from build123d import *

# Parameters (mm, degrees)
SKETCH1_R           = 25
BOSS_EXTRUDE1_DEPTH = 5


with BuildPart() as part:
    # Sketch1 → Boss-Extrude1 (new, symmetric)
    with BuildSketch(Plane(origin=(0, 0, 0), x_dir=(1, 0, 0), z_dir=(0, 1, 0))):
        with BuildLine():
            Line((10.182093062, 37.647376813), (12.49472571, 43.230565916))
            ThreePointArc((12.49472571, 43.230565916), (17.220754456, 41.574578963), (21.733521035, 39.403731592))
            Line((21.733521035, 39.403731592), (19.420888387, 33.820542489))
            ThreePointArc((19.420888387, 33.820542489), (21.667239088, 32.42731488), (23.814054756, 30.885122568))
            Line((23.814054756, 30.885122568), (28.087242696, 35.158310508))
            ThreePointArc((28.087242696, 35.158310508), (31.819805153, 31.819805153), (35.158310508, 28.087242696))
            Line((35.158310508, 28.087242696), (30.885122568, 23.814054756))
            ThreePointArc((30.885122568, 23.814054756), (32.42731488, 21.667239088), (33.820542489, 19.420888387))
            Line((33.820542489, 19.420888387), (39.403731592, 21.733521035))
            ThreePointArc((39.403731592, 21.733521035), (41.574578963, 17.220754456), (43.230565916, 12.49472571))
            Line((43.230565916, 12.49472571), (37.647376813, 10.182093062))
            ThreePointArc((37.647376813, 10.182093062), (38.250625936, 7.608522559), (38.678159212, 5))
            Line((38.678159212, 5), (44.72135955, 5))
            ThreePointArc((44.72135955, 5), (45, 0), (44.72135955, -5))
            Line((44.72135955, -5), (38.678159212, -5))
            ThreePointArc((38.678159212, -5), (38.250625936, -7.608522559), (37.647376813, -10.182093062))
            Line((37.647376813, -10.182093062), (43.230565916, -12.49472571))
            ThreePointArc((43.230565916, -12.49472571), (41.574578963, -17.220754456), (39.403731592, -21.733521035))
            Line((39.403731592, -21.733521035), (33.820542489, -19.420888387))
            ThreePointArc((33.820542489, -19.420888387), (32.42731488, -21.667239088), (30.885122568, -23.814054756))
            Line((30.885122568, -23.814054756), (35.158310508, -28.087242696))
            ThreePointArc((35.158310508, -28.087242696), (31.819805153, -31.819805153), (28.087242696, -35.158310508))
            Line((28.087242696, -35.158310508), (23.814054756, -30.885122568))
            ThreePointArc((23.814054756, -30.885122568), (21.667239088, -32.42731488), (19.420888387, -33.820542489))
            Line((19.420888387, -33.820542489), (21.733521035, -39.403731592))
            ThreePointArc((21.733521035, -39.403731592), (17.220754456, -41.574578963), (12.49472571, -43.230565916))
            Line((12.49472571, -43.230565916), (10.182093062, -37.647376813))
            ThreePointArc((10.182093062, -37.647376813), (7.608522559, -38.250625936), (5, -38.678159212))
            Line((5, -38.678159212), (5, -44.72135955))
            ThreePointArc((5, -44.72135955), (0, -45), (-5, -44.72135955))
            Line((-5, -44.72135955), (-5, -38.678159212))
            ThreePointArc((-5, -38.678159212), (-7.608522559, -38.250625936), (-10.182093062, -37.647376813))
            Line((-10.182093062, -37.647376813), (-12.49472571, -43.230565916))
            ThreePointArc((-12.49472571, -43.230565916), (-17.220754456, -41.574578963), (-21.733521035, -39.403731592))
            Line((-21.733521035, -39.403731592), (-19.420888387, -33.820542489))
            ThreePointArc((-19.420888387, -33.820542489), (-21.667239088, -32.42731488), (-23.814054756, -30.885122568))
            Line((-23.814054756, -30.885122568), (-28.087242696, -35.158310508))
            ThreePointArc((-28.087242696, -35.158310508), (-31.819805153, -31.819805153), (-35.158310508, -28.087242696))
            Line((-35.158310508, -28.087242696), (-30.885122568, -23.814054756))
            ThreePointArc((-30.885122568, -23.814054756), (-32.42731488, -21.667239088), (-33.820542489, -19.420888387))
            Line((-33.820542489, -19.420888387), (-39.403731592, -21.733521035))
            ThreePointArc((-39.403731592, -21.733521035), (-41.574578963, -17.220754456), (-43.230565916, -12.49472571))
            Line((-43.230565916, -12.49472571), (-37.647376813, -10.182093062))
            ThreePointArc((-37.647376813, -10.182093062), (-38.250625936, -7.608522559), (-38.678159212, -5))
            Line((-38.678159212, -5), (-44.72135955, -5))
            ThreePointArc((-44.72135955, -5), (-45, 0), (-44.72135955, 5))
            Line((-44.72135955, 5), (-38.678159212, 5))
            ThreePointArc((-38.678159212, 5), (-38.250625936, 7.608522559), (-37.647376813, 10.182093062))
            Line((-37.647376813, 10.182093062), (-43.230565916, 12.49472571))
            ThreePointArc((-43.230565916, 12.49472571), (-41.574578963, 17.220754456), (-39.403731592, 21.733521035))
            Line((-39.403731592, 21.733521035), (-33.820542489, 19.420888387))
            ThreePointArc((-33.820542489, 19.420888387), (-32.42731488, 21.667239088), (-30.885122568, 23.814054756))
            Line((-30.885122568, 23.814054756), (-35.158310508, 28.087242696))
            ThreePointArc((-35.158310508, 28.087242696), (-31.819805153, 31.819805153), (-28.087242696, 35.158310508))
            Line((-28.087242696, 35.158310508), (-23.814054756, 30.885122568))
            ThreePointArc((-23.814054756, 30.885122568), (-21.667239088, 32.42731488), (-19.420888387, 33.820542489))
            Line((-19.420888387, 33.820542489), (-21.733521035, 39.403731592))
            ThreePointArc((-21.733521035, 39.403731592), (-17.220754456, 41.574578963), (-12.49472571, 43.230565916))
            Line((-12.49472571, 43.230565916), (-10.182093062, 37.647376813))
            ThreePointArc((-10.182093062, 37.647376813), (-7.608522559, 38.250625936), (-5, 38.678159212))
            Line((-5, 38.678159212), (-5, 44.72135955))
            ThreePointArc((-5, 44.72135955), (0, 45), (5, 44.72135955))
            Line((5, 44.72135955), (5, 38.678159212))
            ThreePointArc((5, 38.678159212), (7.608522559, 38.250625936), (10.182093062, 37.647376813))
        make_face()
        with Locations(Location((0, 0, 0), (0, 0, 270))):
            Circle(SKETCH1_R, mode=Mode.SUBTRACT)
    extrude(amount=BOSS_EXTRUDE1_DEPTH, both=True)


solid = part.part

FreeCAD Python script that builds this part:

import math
import FreeCAD as App
import Part
import Sketcher

V = App.Vector
Q = App.Units.Quantity

doc = App.newDocument("Part")
body = doc.addObject("PartDesign::Body", "Body")

# Sketch on XZ plane
sketch1 = doc.addObject("Sketcher::SketchObject", "Sketch")
body.addObject(sketch1)
sketch1.AttachmentSupport = (doc.XZ_Plane, [""])
sketch1.MapMode = "FlatFace"
sketch1.addGeometry([
    Part.LineSegment(V(12.494726, -43.230566, 0), V(10.182093, -37.647377, 0)),  # 0
    Part.ArcOfCircle(Part.Circle(V(0, 0, 0), V(0, 0, 1), 39), math.radians(-82.634114), math.radians(-74.865886)),  # 1
    Part.LineSegment(V(5, -38.678159, 0), V(5, -44.72136, 0)),  # 2
    Part.ArcOfCircle(Part.Circle(V(0, 0, 0), V(0, 0, 1), 45), math.radians(-96.37937), math.radians(-83.62063)),  # 3
    Part.LineSegment(V(-5, -44.72136, 0), V(-5, -38.678159, 0)),  # 4
    Part.ArcOfCircle(Part.Circle(V(0, 0, 0), V(0, 0, 1), 39), math.radians(-105.134114), math.radians(-97.365886)),  # 5
    Part.LineSegment(V(-10.182093, -37.647377, 0), V(-12.494726, -43.230566, 0)),  # 6
    Part.ArcOfCircle(Part.Circle(V(0, 0, 0), V(0, 0, 1), 45), math.radians(-118.87937), math.radians(-106.12063)),  # 7
    Part.LineSegment(V(-21.733521, -39.403732, 0), V(-19.420888, -33.820542, 0)),  # 8
    Part.ArcOfCircle(Part.Circle(V(0, 0, 0), V(0, 0, 1), 39), math.radians(-127.634114), math.radians(-119.865886)),  # 9
    Part.LineSegment(V(-23.814055, -30.885123, 0), V(-28.087243, -35.158311, 0)),  # 10
    Part.ArcOfCircle(Part.Circle(V(0, 0, 0), V(0, 0, 1), 45), math.radians(-141.37937), math.radians(-128.62063)),  # 11
    Part.LineSegment(V(-35.158311, -28.087243, 0), V(-30.885123, -23.814055, 0)),  # 12
    Part.ArcOfCircle(Part.Circle(V(0, 0, 0), V(0, 0, 1), 39), math.radians(-150.134114), math.radians(-142.365886)),  # 13
    Part.LineSegment(V(-33.820542, -19.420888, 0), V(-39.403732, -21.733521, 0)),  # 14
    Part.ArcOfCircle(Part.Circle(V(0, 0, 0), V(0, 0, 1), 45), math.radians(-163.87937), math.radians(-151.12063)),  # 15
    Part.LineSegment(V(-43.230566, -12.494726, 0), V(-37.647377, -10.182093, 0)),  # 16
    Part.ArcOfCircle(Part.Circle(V(0, 0, 0), V(0, 0, 1), 39), math.radians(-172.634114), math.radians(-164.865886)),  # 17
    Part.LineSegment(V(-38.678159, -5, 0), V(-44.72136, -5, 0)),  # 18
    Part.ArcOfCircle(Part.Circle(V(0, 0, 0), V(0, 0, 1), 45), math.radians(173.62063), math.radians(186.37937)),  # 19
    Part.LineSegment(V(-44.72136, 5, 0), V(-38.678159, 5, 0)),  # 20
    Part.ArcOfCircle(Part.Circle(V(0, 0, 0), V(0, 0, 1), 39), math.radians(164.865886), math.radians(172.634114)),  # 21
    Part.LineSegment(V(-37.647377, 10.182093, 0), V(-43.230566, 12.494726, 0)),  # 22
    Part.ArcOfCircle(Part.Circle(V(0, 0, 0), V(0, 0, 1), 45), math.radians(151.12063), math.radians(163.87937)),  # 23
    Part.LineSegment(V(-39.403732, 21.733521, 0), V(-33.820542, 19.420888, 0)),  # 24
    Part.ArcOfCircle(Part.Circle(V(0, 0, 0), V(0, 0, 1), 39), math.radians(142.365886), math.radians(150.134114)),  # 25
    Part.LineSegment(V(-30.885123, 23.814055, 0), V(-35.158311, 28.087243, 0)),  # 26
    Part.ArcOfCircle(Part.Circle(V(0, 0, 0), V(0, 0, 1), 45), math.radians(128.62063), math.radians(141.37937)),  # 27
    Part.LineSegment(V(-28.087243, 35.158311, 0), V(-23.814055, 30.885123, 0)),  # 28
    Part.ArcOfCircle(Part.Circle(V(0, 0, 0), V(0, 0, 1), 39), math.radians(119.865886), math.radians(127.634114)),  # 29
    Part.LineSegment(V(-19.420888, 33.820542, 0), V(-21.733521, 39.403732, 0)),  # 30
    Part.ArcOfCircle(Part.Circle(V(0, 0, 0), V(0, 0, 1), 45), math.radians(106.12063), math.radians(118.87937)),  # 31
    Part.LineSegment(V(-12.494726, 43.230566, 0), V(-10.182093, 37.647377, 0)),  # 32
    Part.ArcOfCircle(Part.Circle(V(0, 0, 0), V(0, 0, 1), 39), math.radians(97.365886), math.radians(105.134114)),  # 33
    Part.LineSegment(V(-5, 38.678159, 0), V(-5, 44.72136, 0)),  # 34
    Part.ArcOfCircle(Part.Circle(V(0, 0, 0), V(0, 0, 1), 45), math.radians(83.62063), math.radians(96.37937)),  # 35
    Part.LineSegment(V(5, 44.72136, 0), V(5, 38.678159, 0)),  # 36
    Part.ArcOfCircle(Part.Circle(V(0, 0, 0), V(0, 0, 1), 39), math.radians(74.865886), math.radians(82.634114)),  # 37
    Part.LineSegment(V(10.182093, 37.647377, 0), V(12.494726, 43.230566, 0)),  # 38
    Part.ArcOfCircle(Part.Circle(V(0, 0, 0), V(0, 0, 1), 45), math.radians(61.12063), math.radians(73.87937)),  # 39
    Part.LineSegment(V(21.733521, 39.403732, 0), V(19.420888, 33.820542, 0)),  # 40
    Part.ArcOfCircle(Part.Circle(V(0, 0, 0), V(0, 0, 1), 39), math.radians(52.365886), math.radians(60.134114)),  # 41
    Part.LineSegment(V(23.814055, 30.885123, 0), V(28.087243, 35.158311, 0)),  # 42
    Part.ArcOfCircle(Part.Circle(V(0, 0, 0), V(0, 0, 1), 45), math.radians(38.62063), math.radians(51.37937)),  # 43
    Part.LineSegment(V(35.158311, 28.087243, 0), V(30.885123, 23.814055, 0)),  # 44
    Part.ArcOfCircle(Part.Circle(V(0, 0, 0), V(0, 0, 1), 39), math.radians(29.865886), math.radians(37.634114)),  # 45
    Part.LineSegment(V(33.820542, 19.420888, 0), V(39.403732, 21.733521, 0)),  # 46
    Part.ArcOfCircle(Part.Circle(V(0, 0, 0), V(0, 0, 1), 45), math.radians(16.12063), math.radians(28.87937)),  # 47
    Part.LineSegment(V(43.230566, 12.494726, 0), V(37.647377, 10.182093, 0)),  # 48
    Part.ArcOfCircle(Part.Circle(V(0, 0, 0), V(0, 0, 1), 39), math.radians(7.365886), math.radians(15.134114)),  # 49
    Part.LineSegment(V(38.678159, 5, 0), V(44.72136, 5, 0)),  # 50
    Part.ArcOfCircle(Part.Circle(V(0, 0, 0), V(0, 0, 1), 45), math.radians(-6.37937), math.radians(6.37937)),  # 51
    Part.LineSegment(V(44.72136, -5, 0), V(38.678159, -5, 0)),  # 52
    Part.ArcOfCircle(Part.Circle(V(0, 0, 0), V(0, 0, 1), 39), math.radians(-15.134114), math.radians(-7.365886)),  # 53
    Part.LineSegment(V(37.647377, -10.182093, 0), V(43.230566, -12.494726, 0)),  # 54
    Part.ArcOfCircle(Part.Circle(V(0, 0, 0), V(0, 0, 1), 45), math.radians(-28.87937), math.radians(-16.12063)),  # 55
    Part.LineSegment(V(39.403732, -21.733521, 0), V(33.820542, -19.420888, 0)),  # 56
    Part.ArcOfCircle(Part.Circle(V(0, 0, 0), V(0, 0, 1), 39), math.radians(-37.634114), math.radians(-29.865886)),  # 57
    Part.LineSegment(V(30.885123, -23.814055, 0), V(35.158311, -28.087243, 0)),  # 58
    Part.ArcOfCircle(Part.Circle(V(0, 0, 0), V(0, 0, 1), 45), math.radians(-51.37937), math.radians(-38.62063)),  # 59
    Part.LineSegment(V(28.087243, -35.158311, 0), V(23.814055, -30.885123, 0)),  # 60
    Part.ArcOfCircle(Part.Circle(V(0, 0, 0), V(0, 0, 1), 39), math.radians(-60.134114), math.radians(-52.365886)),  # 61
    Part.LineSegment(V(19.420888, -33.820542, 0), V(21.733521, -39.403732, 0)),  # 62
    Part.ArcOfCircle(Part.Circle(V(0, 0, 0), V(0, 0, 1), 45), math.radians(-73.87937), math.radians(-61.12063)),  # 63
    Part.Circle(V(0, 0, 0), V(0, 0, 1), 25),  # 64
], False)
sketch1.addConstraint([
    Sketcher.Constraint("Coincident", 0, 2, 1, 2),
    Sketcher.Constraint("Coincident", 1, 1, 2, 1),
    Sketcher.Constraint("Coincident", 2, 2, 3, 2),
    Sketcher.Constraint("Coincident", 3, 1, 4, 1),
    Sketcher.Constraint("Coincident", 4, 2, 5, 2),
    Sketcher.Constraint("Coincident", 5, 1, 6, 1),
    Sketcher.Constraint("Coincident", 6, 2, 7, 2),
    Sketcher.Constraint("Coincident", 7, 1, 8, 1),
    Sketcher.Constraint("Coincident", 8, 2, 9, 2),
    Sketcher.Constraint("Coincident", 9, 1, 10, 1),
    Sketcher.Constraint("Coincident", 10, 2, 11, 2),
    Sketcher.Constraint("Coincident", 11, 1, 12, 1),
    Sketcher.Constraint("Coincident", 12, 2, 13, 2),
    Sketcher.Constraint("Coincident", 13, 1, 14, 1),
    Sketcher.Constraint("Coincident", 14, 2, 15, 2),
    Sketcher.Constraint("Coincident", 15, 1, 16, 1),
    Sketcher.Constraint("Coincident", 16, 2, 17, 2),
    Sketcher.Constraint("Coincident", 17, 1, 18, 1),
    Sketcher.Constraint("Coincident", 18, 2, 19, 2),
    Sketcher.Constraint("Coincident", 19, 1, 20, 1),
    Sketcher.Constraint("Coincident", 20, 2, 21, 2),
    Sketcher.Constraint("Coincident", 21, 1, 22, 1),
    Sketcher.Constraint("Coincident", 22, 2, 23, 2),
    Sketcher.Constraint("Coincident", 23, 1, 24, 1),
    Sketcher.Constraint("Coincident", 24, 2, 25, 2),
    Sketcher.Constraint("Coincident", 25, 1, 26, 1),
    Sketcher.Constraint("Coincident", 26, 2, 27, 2),
    Sketcher.Constraint("Coincident", 27, 1, 28, 1),
    Sketcher.Constraint("Coincident", 28, 2, 29, 2),
    Sketcher.Constraint("Coincident", 29, 1, 30, 1),
    Sketcher.Constraint("Coincident", 30, 2, 31, 2),
    Sketcher.Constraint("Coincident", 31, 1, 32, 1),
    Sketcher.Constraint("Coincident", 32, 2, 33, 2),
    Sketcher.Constraint("Coincident", 33, 1, 34, 1),
    Sketcher.Constraint("Coincident", 34, 2, 35, 2),
    Sketcher.Constraint("Coincident", 35, 1, 36, 1),
    Sketcher.Constraint("Coincident", 36, 2, 37, 2),
    Sketcher.Constraint("Coincident", 37, 1, 38, 1),
    Sketcher.Constraint("Coincident", 38, 2, 39, 2),
    Sketcher.Constraint("Coincident", 39, 1, 40, 1),
    Sketcher.Constraint("Coincident", 40, 2, 41, 2),
    Sketcher.Constraint("Coincident", 41, 1, 42, 1),
    Sketcher.Constraint("Coincident", 42, 2, 43, 2),
    Sketcher.Constraint("Coincident", 43, 1, 44, 1),
    Sketcher.Constraint("Coincident", 44, 2, 45, 2),
    Sketcher.Constraint("Coincident", 45, 1, 46, 1),
    Sketcher.Constraint("Coincident", 46, 2, 47, 2),
    Sketcher.Constraint("Coincident", 47, 1, 48, 1),
    Sketcher.Constraint("Coincident", 48, 2, 49, 2),
    Sketcher.Constraint("Coincident", 49, 1, 50, 1),
    Sketcher.Constraint("Coincident", 50, 2, 51, 2),
    Sketcher.Constraint("Coincident", 51, 1, 52, 1),
    Sketcher.Constraint("Coincident", 52, 2, 53, 2),
    Sketcher.Constraint("Coincident", 53, 1, 54, 1),
    Sketcher.Constraint("Coincident", 54, 2, 55, 2),
    Sketcher.Constraint("Coincident", 55, 1, 56, 1),
    Sketcher.Constraint("Coincident", 56, 2, 57, 2),
    Sketcher.Constraint("Coincident", 57, 1, 58, 1),
    Sketcher.Constraint("Coincident", 58, 2, 59, 2),
    Sketcher.Constraint("Coincident", 59, 1, 60, 1),
    Sketcher.Constraint("Coincident", 60, 2, 61, 2),
    Sketcher.Constraint("Coincident", 61, 1, 62, 1),
    Sketcher.Constraint("Coincident", 62, 2, 63, 2),
    Sketcher.Constraint("Coincident", 63, 1, 0, 1),
    Sketcher.Constraint("Vertical", 2),
    Sketcher.Constraint("Vertical", 4),
    Sketcher.Constraint("Horizontal", 18),
    Sketcher.Constraint("Horizontal", 20),
    Sketcher.Constraint("Vertical", 34),
    Sketcher.Constraint("Vertical", 36),
    Sketcher.Constraint("Horizontal", 50),
    Sketcher.Constraint("Horizontal", 52),
    Sketcher.Constraint("Coincident", 1, 3, -1, 1),
    Sketcher.Constraint("Coincident", 3, 3, -1, 1),
    Sketcher.Constraint("Coincident", 5, 3, -1, 1),
    Sketcher.Constraint("Coincident", 7, 3, -1, 1),
    Sketcher.Constraint("Coincident", 9, 3, -1, 1),
    Sketcher.Constraint("Coincident", 11, 3, -1, 1),
    Sketcher.Constraint("Coincident", 13, 3, -1, 1),
    Sketcher.Constraint("Coincident", 15, 3, -1, 1),
    Sketcher.Constraint("Coincident", 17, 3, -1, 1),
    Sketcher.Constraint("Coincident", 19, 3, -1, 1),
    Sketcher.Constraint("Coincident", 21, 3, -1, 1),
    Sketcher.Constraint("Coincident", 23, 3, -1, 1),
    Sketcher.Constraint("Coincident", 25, 3, -1, 1),
    Sketcher.Constraint("Coincident", 27, 3, -1, 1),
    Sketcher.Constraint("Coincident", 29, 3, -1, 1),
    Sketcher.Constraint("Coincident", 31, 3, -1, 1),
    Sketcher.Constraint("Coincident", 33, 3, -1, 1),
    Sketcher.Constraint("Coincident", 35, 3, -1, 1),
    Sketcher.Constraint("Coincident", 37, 3, -1, 1),
    Sketcher.Constraint("Coincident", 39, 3, -1, 1),
    Sketcher.Constraint("Coincident", 41, 3, -1, 1),
    Sketcher.Constraint("Coincident", 43, 3, -1, 1),
    Sketcher.Constraint("Coincident", 45, 3, -1, 1),
    Sketcher.Constraint("Coincident", 47, 3, -1, 1),
    Sketcher.Constraint("Coincident", 49, 3, -1, 1),
    Sketcher.Constraint("Coincident", 51, 3, -1, 1),
    Sketcher.Constraint("Coincident", 53, 3, -1, 1),
    Sketcher.Constraint("Coincident", 55, 3, -1, 1),
    Sketcher.Constraint("Coincident", 57, 3, -1, 1),
    Sketcher.Constraint("Coincident", 59, 3, -1, 1),
    Sketcher.Constraint("Coincident", 61, 3, -1, 1),
    Sketcher.Constraint("Coincident", 63, 3, -1, 1),
    Sketcher.Constraint("Coincident", 64, 3, -1, 1),
    Sketcher.Constraint("Equal", 1, 5),
    Sketcher.Constraint("Equal", 3, 7),
    Sketcher.Constraint("Equal", 5, 9),
    Sketcher.Constraint("Equal", 7, 11),
    Sketcher.Constraint("Equal", 9, 13),
    Sketcher.Constraint("Equal", 11, 15),
    Sketcher.Constraint("Equal", 13, 17),
    Sketcher.Constraint("Equal", 15, 19),
    Sketcher.Constraint("Equal", 17, 21),
    Sketcher.Constraint("Equal", 19, 23),
    Sketcher.Constraint("Equal", 21, 25),
    Sketcher.Constraint("Equal", 23, 27),
    Sketcher.Constraint("Equal", 25, 29),
    Sketcher.Constraint("Equal", 27, 31),
    Sketcher.Constraint("Equal", 29, 33),
    Sketcher.Constraint("Equal", 31, 35),
    Sketcher.Constraint("Equal", 33, 37),
    Sketcher.Constraint("Equal", 35, 39),
    Sketcher.Constraint("Equal", 37, 41),
    Sketcher.Constraint("Equal", 39, 43),
    Sketcher.Constraint("Equal", 41, 45),
    Sketcher.Constraint("Equal", 43, 47),
    Sketcher.Constraint("Equal", 45, 49),
    Sketcher.Constraint("Equal", 47, 51),
    Sketcher.Constraint("Equal", 49, 53),
    Sketcher.Constraint("Equal", 51, 55),
    Sketcher.Constraint("Equal", 53, 57),
    Sketcher.Constraint("Equal", 55, 59),
    Sketcher.Constraint("Equal", 57, 61),
    Sketcher.Constraint("Equal", 59, 63),
    Sketcher.Constraint("Parallel", 6, 8),
    Sketcher.Constraint("Parallel", 10, 12),
    Sketcher.Constraint("Perpendicular", 0, 14),
    Sketcher.Constraint("Parallel", 14, 16),
    Sketcher.Constraint("Perpendicular", 8, 22),
    Sketcher.Constraint("Parallel", 22, 24),
    Sketcher.Constraint("Perpendicular", 12, 26),
    Sketcher.Constraint("Parallel", 26, 28),
    Sketcher.Constraint("Perpendicular", 16, 30),
    Sketcher.Constraint("Parallel", 30, 32),
    Sketcher.Constraint("Perpendicular", 24, 38),
    Sketcher.Constraint("Parallel", 38, 40),
    Sketcher.Constraint("Perpendicular", 28, 42),
    Sketcher.Constraint("Parallel", 42, 44),
    Sketcher.Constraint("Perpendicular", 32, 46),
    Sketcher.Constraint("Parallel", 46, 48),
    Sketcher.Constraint("Perpendicular", 40, 54),
    Sketcher.Constraint("Parallel", 54, 56),
    Sketcher.Constraint("Perpendicular", 44, 58),
    Sketcher.Constraint("Parallel", 58, 60),
    Sketcher.Constraint("Perpendicular", 48, 62),
    Sketcher.Constraint("Horizontal", 2, 2, 3, 1),
    Sketcher.Constraint("Horizontal", 0, 2, 5, 1),
    Sketcher.Constraint("Horizontal", 34, 2, 35, 1),
    Sketcher.Constraint("Horizontal", 32, 2, 37, 1),
    Sketcher.Constraint("Horizontal", 31, 1, 38, 2),
    Sketcher.Constraint("Horizontal", 30, 2, 39, 1),
    Sketcher.Constraint("Horizontal", 28, 2, 41, 1),
    Sketcher.Constraint("Horizontal", 27, 1, 42, 2),
    Sketcher.Constraint("Horizontal", 26, 2, 43, 1),
    Sketcher.Constraint("Horizontal", 24, 2, 45, 1),
    Sketcher.Constraint("Horizontal", 22, 2, 47, 1),
    Sketcher.Constraint("Horizontal", 20, 2, 49, 1),
    Sketcher.Constraint("Horizontal", 18, 2, 51, 1),
    Sketcher.Constraint("Horizontal", 16, 2, 53, 1),
    Sketcher.Constraint("Horizontal", 14, 2, 55, 1),
    Sketcher.Constraint("Horizontal", 12, 2, 57, 1),
    Sketcher.Constraint("Horizontal", 10, 2, 59, 1),
    Sketcher.Constraint("Horizontal", 8, 2, 61, 1),
    Sketcher.Constraint("Vertical", 18, 2, 19, 1),
    Sketcher.Constraint("Vertical", 16, 2, 21, 1),
    Sketcher.Constraint("Vertical", 14, 2, 23, 1),
    Sketcher.Constraint("Vertical", 12, 2, 25, 1),
    Sketcher.Constraint("Vertical", 10, 2, 27, 1),
    Sketcher.Constraint("Vertical", 8, 2, 29, 1),
    Sketcher.Constraint("Vertical", 6, 2, 31, 1),
    Sketcher.Constraint("Vertical", 4, 2, 33, 1),
    Sketcher.Constraint("Equal", 52, 2),
    Sketcher.Constraint("Equal", 6, 8),
    Sketcher.Constraint("Equal", 8, 10),
    Sketcher.Constraint("Equal", 10, 12),
    Sketcher.Constraint("Equal", 12, 14),
    Sketcher.Constraint("Equal", 14, 16),
    Sketcher.Constraint("Diameter", 64, Q("50 mm")),
    Sketcher.Constraint("Radius", 1, Q("39 mm")),
    Sketcher.Constraint("Radius", 3, Q("45 mm")),
    Sketcher.Constraint("DistanceX", -1, 1, 1, 1, Q("5 mm")),
    Sketcher.Constraint("Angle", 0, Q("112.5 deg")),
    Sketcher.Constraint("DistanceX", 7, 1, -1, 1, Q("21.733521 mm")),
])
pad1 = doc.addObject("PartDesign::Pad", "Pad")
body.addObject(pad1)
pad1.Profile = sketch1
pad1.Length = 10
pad1.Midplane = True

doc.recompute()
